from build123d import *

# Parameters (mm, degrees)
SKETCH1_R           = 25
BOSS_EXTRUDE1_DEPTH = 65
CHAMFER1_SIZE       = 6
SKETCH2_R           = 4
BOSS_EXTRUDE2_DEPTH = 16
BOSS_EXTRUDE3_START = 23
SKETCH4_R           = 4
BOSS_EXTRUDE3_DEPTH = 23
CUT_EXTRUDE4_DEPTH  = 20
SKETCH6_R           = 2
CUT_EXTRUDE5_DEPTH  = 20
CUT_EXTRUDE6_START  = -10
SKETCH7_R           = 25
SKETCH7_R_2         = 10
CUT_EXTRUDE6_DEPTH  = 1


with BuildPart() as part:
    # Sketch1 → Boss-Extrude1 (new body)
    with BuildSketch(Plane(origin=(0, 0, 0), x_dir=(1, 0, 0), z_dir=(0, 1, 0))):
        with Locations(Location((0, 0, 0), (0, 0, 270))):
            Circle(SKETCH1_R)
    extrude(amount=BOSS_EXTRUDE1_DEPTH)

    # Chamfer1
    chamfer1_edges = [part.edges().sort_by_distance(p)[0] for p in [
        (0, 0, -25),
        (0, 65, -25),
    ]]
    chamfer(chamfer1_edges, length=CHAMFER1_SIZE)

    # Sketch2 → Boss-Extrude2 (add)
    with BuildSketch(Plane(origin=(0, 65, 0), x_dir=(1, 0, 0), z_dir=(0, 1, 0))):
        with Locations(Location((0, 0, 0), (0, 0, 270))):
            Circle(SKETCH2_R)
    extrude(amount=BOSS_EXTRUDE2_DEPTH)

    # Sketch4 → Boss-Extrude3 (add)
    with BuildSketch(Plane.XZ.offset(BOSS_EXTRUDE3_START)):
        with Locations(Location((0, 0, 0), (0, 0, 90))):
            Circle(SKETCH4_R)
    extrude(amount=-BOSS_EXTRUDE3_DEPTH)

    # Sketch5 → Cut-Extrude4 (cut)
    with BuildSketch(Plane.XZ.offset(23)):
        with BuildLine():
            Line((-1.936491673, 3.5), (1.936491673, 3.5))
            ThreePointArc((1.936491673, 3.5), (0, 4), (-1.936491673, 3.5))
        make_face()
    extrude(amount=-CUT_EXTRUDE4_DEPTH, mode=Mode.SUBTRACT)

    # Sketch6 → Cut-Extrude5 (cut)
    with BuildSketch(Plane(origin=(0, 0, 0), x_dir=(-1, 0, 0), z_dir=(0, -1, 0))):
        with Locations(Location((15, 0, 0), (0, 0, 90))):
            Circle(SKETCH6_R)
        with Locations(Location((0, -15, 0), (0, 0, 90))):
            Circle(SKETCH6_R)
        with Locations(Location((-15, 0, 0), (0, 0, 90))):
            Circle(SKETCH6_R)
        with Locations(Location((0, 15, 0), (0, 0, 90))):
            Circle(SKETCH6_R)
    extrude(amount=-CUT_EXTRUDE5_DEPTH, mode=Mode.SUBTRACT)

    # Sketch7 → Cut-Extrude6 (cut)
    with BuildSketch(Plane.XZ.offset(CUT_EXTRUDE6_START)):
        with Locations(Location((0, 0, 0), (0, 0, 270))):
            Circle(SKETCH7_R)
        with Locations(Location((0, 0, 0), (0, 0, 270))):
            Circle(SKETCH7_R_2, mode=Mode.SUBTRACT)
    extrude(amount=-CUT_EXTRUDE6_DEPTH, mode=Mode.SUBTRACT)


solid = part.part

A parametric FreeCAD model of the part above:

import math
import FreeCAD as App
import Part
import Sketcher


def edges_at(feature, points):
    """Names of the edges that pass closest to the given points."""
    edges = feature.Shape.Edges
    near = lambda p: min(range(len(edges)), key=lambda i: edges[i].distToShape(Part.Vertex(*p))[0])
    return sorted({f"Edge{near(p) + 1}" for p in points})

doc = App.newDocument("Part")
params = doc.addObject("Spreadsheet::Sheet", "Params")
for row, (alias, value) in enumerate([
    ("sketch1_diameter", "50 mm"),
    ("pad1_length", "65 mm"),
    ("chamfer_size", "6 mm"),
    ("sketch2_diameter", "8 mm"),
    ("pad2_length", "16 mm"),
    ("sketch3_diameter", "8 mm"),
    ("pad3_length", "23 mm"),
    ("sketch4_radius", "4 mm"),
    ("pocket1_length", "20 mm"),
    ("sketch5_diameter", "4 mm"),
    ("pocket2_length", "20 mm"),
    ("sketch6_diameter", "50 mm"),
    ("sketch6_diameter2", "20 mm"),
    ("pocket3_length", "1 mm"),
], start=1):
    params.set(f"A{row}", alias)
    params.set(f"B{row}", "=" + value)
    params.setAlias(f"B{row}", alias)

body = doc.addObject("PartDesign::Body", "Body")

# Sketch on XZ plane
sketch1 = body.newObject("Sketcher::SketchObject", "Sketch")
sketch1.AttachmentSupport = (doc.getObject("XZ_Plane"), [""])
sketch1.MapMode = "FlatFace"
sketch1.addGeometry(Part.Circle(App.Vector(0, 0, 0), App.Vector(0, 0, 1), 25), False)
sketch1.addConstraint([
    Sketcher.Constraint("Coincident", 0, 3, -1, 1),
    Sketcher.Constraint("Diameter", 0, 50.0),
])
sketch1.setExpression("Constraints[1]", "Params.sketch1_diameter")
pad1 = body.newObject("PartDesign::Pad", "Pad")
pad1.Profile = sketch1
pad1.setExpression("Length", "Params.pad1_length")
pad1.Reversed = True
doc.recompute()

chamfer = body.newObject("PartDesign::Chamfer", "Chamfer")
chamfer.Base = (pad1, edges_at(pad1, [(0, 0, -25), (0, 65, -25)]))
chamfer.setExpression("Size", "Params.chamfer_size")

# Sketch on XZ plane
sketch2 = body.newObject("Sketcher::SketchObject", "Sketch001")
sketch2.AttachmentSupport = (doc.getObject("XZ_Plane"), [""])
sketch2.MapMode = "FlatFace"
sketch2.AttachmentOffset = App.Placement(App.Vector(0, 0, -65), App.Rotation())
sketch2.addGeometry(Part.Circle(App.Vector(0, 0, 0), App.Vector(0, 0, 1), 4), False)
sketch2.addConstraint([
    Sketcher.Constraint("Coincident", 0, 3, -1, 1),
    Sketcher.Constraint("Diameter", 0, 8.0),
])
sketch2.setExpression("Constraints[1]", "Params.sketch2_diameter")
pad2 = body.newObject("PartDesign::Pad", "Pad001")
pad2.Profile = sketch2
pad2.setExpression("Length", "Params.pad2_length")
pad2.Reversed = True

# Sketch on XZ plane
sketch3 = body.newObject("Sketcher::SketchObject", "Sketch002")
sketch3.AttachmentSupport = (doc.getObject("XZ_Plane"), [""])
sketch3.MapMode = "FlatFace"
sketch3.AttachmentOffset = App.Placement(App.Vector(0, 0, 23), App.Rotation())
sketch3.addGeometry(Part.Circle(App.Vector(0, 0, 0), App.Vector(0, 0, 1), 4), False)
sketch3.addConstraint([
    Sketcher.Constraint("Coincident", 0, 3, -1, 1),
    Sketcher.Constraint("Diameter", 0, 8.0),
])
sketch3.setExpression("Constraints[1]", "Params.sketch3_diameter")
pad3 = body.newObject("PartDesign::Pad", "Pad002")
pad3.Profile = sketch3
pad3.setExpression("Length", "Params.pad3_length")
pad3.Reversed = True

# Sketch on XZ plane
sketch4 = body.newObject("Sketcher::SketchObject", "Sketch003")
sketch4.AttachmentSupport = (doc.getObject("XZ_Plane"), [""])
sketch4.MapMode = "FlatFace"
sketch4.AttachmentOffset = App.Placement(App.Vector(0, 0, 23), App.Rotation())
sketch4.addGeometry([
    Part.LineSegment(App.Vector(-1.936492, 3.5, 0), App.Vector(1.936492, 3.5, 0)),
    Part.ArcOfCircle(Part.Circle(App.Vector(0, 0, 0), App.Vector(0, 0, 1), 4), math.radians(61.044976), math.radians(118.955024)),
], False)
sketch4.addConstraint([
    Sketcher.Constraint("Coincident", 0, 1, 1, 2),
    Sketcher.Constraint("Coincident", 1, 1, 0, 2),
    Sketcher.Constraint("Horizontal", 0),
    Sketcher.Constraint("Coincident", 1, 3, -1, 1),
    Sketcher.Constraint("Radius", 1, 4.0),
    Sketcher.Constraint("DistanceY", -1, 1, 0, 1, 3.5),
])
sketch4.setExpression("Constraints[4]", "Params.sketch4_radius")
pocket1 = body.newObject("PartDesign::Pocket", "Pocket")
pocket1.Profile = sketch4
pocket1.setExpression("Length", "Params.pocket1_length")

# Sketch on XZ plane
sketch5 = body.newObject("Sketcher::SketchObject", "Sketch004")
sketch5.AttachmentSupport = (doc.getObject("XZ_Plane"), [""])
sketch5.MapMode = "FlatFace"
sketch5.addGeometry([
    Part.Circle(App.Vector(-15, 0, 0), App.Vector(0, 0, 1), 2),
    Part.Circle(App.Vector(0, 15, 0), App.Vector(0, 0, 1), 2),
    Part.Circle(App.Vector(15, 0, 0), App.Vector(0, 0, 1), 2),
    Part.Circle(App.Vector(0, -15, 0), App.Vector(0, 0, 1), 2),
], False)
sketch5.addConstraint([
    Sketcher.Constraint("Equal", 0, 1),
    Sketcher.Constraint("Equal", 1, 2),
    Sketcher.Constraint("Equal", 2, 3),
    Sketcher.Constraint("Symmetric", 0, 3, 2, 3, -1, 1),
    Sketcher.Constraint("Symmetric", 1, 3, 3, 3, -1, 1),
    Sketcher.Constraint("PointOnObject", 0, 3, -1),
    Sketcher.Constraint("PointOnObject", 1, 3, -2),
    Sketcher.Constraint("Diameter", 0, 4.0),
    Sketcher.Constraint("DistanceX", 0, 3, -1, 1, 15.0),
    Sketcher.Constraint("DistanceY", -1, 1, 1, 3, 15.0),
])
sketch5.setExpression("Constraints[7]", "Params.sketch5_diameter")
pocket2 = body.newObject("PartDesign::Pocket", "Pocket001")
pocket2.Profile = sketch5
pocket2.setExpression("Length", "Params.pocket2_length")

# Sketch on XZ plane
sketch6 = body.newObject("Sketcher::SketchObject", "Sketch005")
sketch6.AttachmentSupport = (doc.getObject("XZ_Plane"), [""])
sketch6.MapMode = "FlatFace"
sketch6.AttachmentOffset = App.Placement(App.Vector(0, 0, -10), App.Rotation())
sketch6.addGeometry([
    Part.Circle(App.Vector(0, 0, 0), App.Vector(0, 0, 1), 25),
    Part.Circle(App.Vector(0, 0, 0), App.Vector(0, 0, 1), 10),
], False)
sketch6.addConstraint([
    Sketcher.Constraint("Coincident", 0, 3, -1, 1),
    Sketcher.Constraint("Coincident", 1, 3, -1, 1),
    Sketcher.Constraint("Diameter", 0, 50.0),
    Sketcher.Constraint("Diameter", 1, 20.0),
])
sketch6.setExpression("Constraints[2]", "Params.sketch6_diameter")
sketch6.setExpression("Constraints[3]", "Params.sketch6_diameter2")
pocket3 = body.newObject("PartDesign::Pocket", "Pocket002")
pocket3.Profile = sketch6
pocket3.setExpression("Length", "Params.pocket3_length")

doc.recompute()
